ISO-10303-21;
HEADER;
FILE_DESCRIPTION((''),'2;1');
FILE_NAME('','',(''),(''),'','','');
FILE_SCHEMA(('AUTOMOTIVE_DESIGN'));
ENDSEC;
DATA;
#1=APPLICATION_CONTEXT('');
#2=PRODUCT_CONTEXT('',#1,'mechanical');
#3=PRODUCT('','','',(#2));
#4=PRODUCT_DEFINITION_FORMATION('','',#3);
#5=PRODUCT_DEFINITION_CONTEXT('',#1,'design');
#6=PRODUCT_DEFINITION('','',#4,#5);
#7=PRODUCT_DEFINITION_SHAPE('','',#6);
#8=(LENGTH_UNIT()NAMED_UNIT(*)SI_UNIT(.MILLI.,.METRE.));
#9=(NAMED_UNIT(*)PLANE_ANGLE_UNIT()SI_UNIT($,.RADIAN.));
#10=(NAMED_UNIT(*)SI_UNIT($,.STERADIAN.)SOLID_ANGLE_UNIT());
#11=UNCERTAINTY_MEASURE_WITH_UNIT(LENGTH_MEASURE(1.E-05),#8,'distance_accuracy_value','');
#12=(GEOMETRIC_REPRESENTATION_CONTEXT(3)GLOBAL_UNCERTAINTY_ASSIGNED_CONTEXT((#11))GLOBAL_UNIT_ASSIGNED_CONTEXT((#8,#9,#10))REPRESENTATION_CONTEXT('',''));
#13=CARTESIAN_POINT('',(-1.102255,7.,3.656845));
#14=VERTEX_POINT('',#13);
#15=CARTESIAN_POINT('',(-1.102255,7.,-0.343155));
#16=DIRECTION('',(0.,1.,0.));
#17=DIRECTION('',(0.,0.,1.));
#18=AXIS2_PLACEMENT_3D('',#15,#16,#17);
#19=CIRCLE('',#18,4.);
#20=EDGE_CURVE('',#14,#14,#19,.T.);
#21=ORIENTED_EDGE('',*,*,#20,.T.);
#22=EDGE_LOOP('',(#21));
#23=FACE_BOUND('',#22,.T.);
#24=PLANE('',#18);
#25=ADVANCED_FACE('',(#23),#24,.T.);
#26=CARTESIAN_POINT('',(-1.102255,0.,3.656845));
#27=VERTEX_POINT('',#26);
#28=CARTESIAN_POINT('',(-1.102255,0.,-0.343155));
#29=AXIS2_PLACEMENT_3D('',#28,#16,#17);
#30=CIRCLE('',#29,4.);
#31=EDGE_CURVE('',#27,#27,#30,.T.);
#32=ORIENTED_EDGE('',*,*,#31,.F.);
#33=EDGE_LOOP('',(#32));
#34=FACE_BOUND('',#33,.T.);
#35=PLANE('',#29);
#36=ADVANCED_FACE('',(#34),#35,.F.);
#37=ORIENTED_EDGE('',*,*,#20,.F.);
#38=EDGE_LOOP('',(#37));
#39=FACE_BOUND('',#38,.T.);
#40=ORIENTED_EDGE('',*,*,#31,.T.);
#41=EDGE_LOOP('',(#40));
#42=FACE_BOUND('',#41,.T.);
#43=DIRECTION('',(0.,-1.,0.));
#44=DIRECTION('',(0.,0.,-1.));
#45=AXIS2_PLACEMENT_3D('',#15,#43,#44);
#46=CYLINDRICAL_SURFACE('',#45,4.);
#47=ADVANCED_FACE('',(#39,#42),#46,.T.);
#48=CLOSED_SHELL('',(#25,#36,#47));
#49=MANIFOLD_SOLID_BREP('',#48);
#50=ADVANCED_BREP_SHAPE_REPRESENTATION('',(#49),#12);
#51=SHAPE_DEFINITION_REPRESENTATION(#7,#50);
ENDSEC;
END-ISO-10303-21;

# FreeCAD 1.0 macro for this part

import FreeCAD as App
import Part
import Sketcher
from FreeCAD import Vector

doc = App.newDocument("Part")
body = doc.addObject("PartDesign::Body", "Body")

sketch1 = body.newObject("Sketcher::SketchObject", "Sketch")
sketch1.AttachmentSupport = (doc.getObject("XZ_Plane"), [""])
sketch1.MapMode = "FlatFace"
sketch1.addGeometry(Part.Circle(Vector(-1.1, -0.3, 0), Vector(0, 0, 1), 4), False)
sketch1.addConstraint([
    Sketcher.Constraint("Diameter", 0, 8.0),
    Sketcher.Constraint("DistanceX", 0, 3, -1, 1, 1.102255),
    Sketcher.Constraint("DistanceY", 0, 3, -1, 1, 0.343155),
])
pad1 = body.newObject("PartDesign::Pad", "Pad")
pad1.Profile = sketch1
pad1.Length = 7
pad1.Reversed = True

doc.recompute()
